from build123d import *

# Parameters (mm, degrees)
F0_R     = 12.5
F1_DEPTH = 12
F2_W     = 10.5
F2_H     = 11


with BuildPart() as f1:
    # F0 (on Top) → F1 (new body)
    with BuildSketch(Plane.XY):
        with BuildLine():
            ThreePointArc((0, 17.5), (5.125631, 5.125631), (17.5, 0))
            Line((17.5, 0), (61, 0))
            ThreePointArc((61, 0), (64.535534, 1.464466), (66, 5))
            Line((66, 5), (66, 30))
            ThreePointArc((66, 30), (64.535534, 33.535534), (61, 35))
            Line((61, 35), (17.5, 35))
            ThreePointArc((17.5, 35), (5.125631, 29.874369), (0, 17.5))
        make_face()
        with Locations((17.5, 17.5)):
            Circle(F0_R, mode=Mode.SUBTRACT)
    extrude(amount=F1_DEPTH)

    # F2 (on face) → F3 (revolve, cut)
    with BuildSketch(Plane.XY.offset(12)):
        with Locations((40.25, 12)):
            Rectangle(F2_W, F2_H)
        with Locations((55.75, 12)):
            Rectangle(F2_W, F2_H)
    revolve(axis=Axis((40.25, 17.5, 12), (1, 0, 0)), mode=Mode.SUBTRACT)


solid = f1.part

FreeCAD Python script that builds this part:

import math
import FreeCAD as App
import Part
import Sketcher
from FreeCAD import Vector


def add_polygon(sketch, points):
    """Adds a closed chain of lines whose ends are joined by coincident constraints."""
    first, n = sketch.GeometryCount, len(points)
    for a, b in zip(points, points[1:] + points[:1]):
        sketch.addGeometry(Part.LineSegment(App.Vector(*a, 0), App.Vector(*b, 0)), False)
    for i in range(n):
        sketch.addConstraint(Sketcher.Constraint("Coincident", first + i, 2, first + (i + 1) % n, 1))

doc = App.newDocument("Part")
body = doc.addObject("PartDesign::Body", "Body")

sketch1 = body.newObject("Sketcher::SketchObject", "Sketch")
sketch1.AttachmentSupport = (doc.getObject("XY_Plane"), [""])
sketch1.MapMode = "FlatFace"
sketch1.addGeometry(Part.ArcOfCircle(Part.Circle(Vector(17.5, 17.5, 0), Vector(0, 0, 1), 17.5), math.radians(180), math.radians(270)), False)
sketch1.addGeometry(Part.LineSegment(Vector(17.5, 0, 0), Vector(61, 0, 0)), False)
sketch1.addGeometry(Part.ArcOfCircle(Part.Circle(Vector(61, 5, 0), Vector(0, 0, 1), 5), math.radians(-90), math.radians(0)), False)
sketch1.addGeometry(Part.LineSegment(Vector(66, 5, 0), Vector(66, 30, 0)), False)
sketch1.addGeometry(Part.ArcOfCircle(Part.Circle(Vector(61, 30, 0), Vector(0, 0, 1), 5), math.radians(0), math.radians(90)), False)
sketch1.addGeometry(Part.LineSegment(Vector(61, 35, 0), Vector(17.5, 35, 0)), False)
sketch1.addGeometry(Part.ArcOfCircle(Part.Circle(Vector(17.5, 17.5, 0), Vector(0, 0, 1), 17.5), math.radians(90), math.radians(180)), False)
sketch1.addGeometry(Part.Circle(Vector(17.5, 17.5, 0), Vector(0, 0, 1), 12.5), False)
sketch1.addConstraint(Sketcher.Constraint("Tangent", 0, 2, 1, 1))
sketch1.addConstraint(Sketcher.Constraint("Tangent", 1, 2, 2, 1))
sketch1.addConstraint(Sketcher.Constraint("Tangent", 2, 2, 3, 1))
sketch1.addConstraint(Sketcher.Constraint("Tangent", 3, 2, 4, 1))
sketch1.addConstraint(Sketcher.Constraint("Tangent", 4, 2, 5, 1))
sketch1.addConstraint(Sketcher.Constraint("Tangent", 5, 2, 6, 1))
sketch1.addConstraint(Sketcher.Constraint("Tangent", 6, 2, 0, 1))
sketch1.addConstraint(Sketcher.Constraint("Horizontal", 1))
sketch1.addConstraint(Sketcher.Constraint("Vertical", 3))
sketch1.addConstraint(Sketcher.Constraint("Horizontal", 5))
sketch1.addConstraint(Sketcher.Constraint("Coincident", 7, 3, 0, 3))
sketch1.addConstraint(Sketcher.Constraint("Equal", 2, 4))
sketch1.addConstraint(Sketcher.Constraint("Equal", 0, 6))
sketch1.addConstraint(Sketcher.Constraint("PointOnObject", 0, 2, -1))
sketch1.addConstraint(Sketcher.Constraint("PointOnObject", 6, 2, -2))
sketch1.addConstraint(Sketcher.Constraint("Horizontal", 7, 3, 6, 2))
sketch1.addConstraint(Sketcher.Constraint("Diameter", 7, 25.0))
sketch1.addConstraint(Sketcher.Constraint("Radius", 2, 5.0))
sketch1.addConstraint(Sketcher.Constraint("Radius", 0, 17.499999))
sketch1.addConstraint(Sketcher.Constraint("DistanceX", 1, 1, 1, 2, 43.5))
pad1 = body.newObject("PartDesign::Pad", "Pad")
pad1.Profile = sketch1
pad1.Length = 12

sketch2 = body.newObject("Sketcher::SketchObject", "Sketch001")
sketch2.AttachmentSupport = (doc.getObject("XY_Plane"), [""])
sketch2.MapMode = "FlatFace"
sketch2.AttachmentOffset = App.Placement(Vector(0, 0, 12), App.Rotation())
add_polygon(sketch2, [(35, 18), (35, 6), (46, 6), (46, 18)])
add_polygon(sketch2, [(50, 18), (50, 6), (61, 6), (61, 18)])
sketch2.addGeometry(Part.LineSegment(Vector(35, 18, 0), Vector(61, 18, 0)), True)
sketch2.addConstraint(Sketcher.Constraint("Vertical", 0))
sketch2.addConstraint(Sketcher.Constraint("Horizontal", 1))
sketch2.addConstraint(Sketcher.Constraint("Vertical", 2))
sketch2.addConstraint(Sketcher.Constraint("Horizontal", 3))
sketch2.addConstraint(Sketcher.Constraint("Vertical", 4))
sketch2.addConstraint(Sketcher.Constraint("Horizontal", 5))
sketch2.addConstraint(Sketcher.Constraint("Vertical", 6))
sketch2.addConstraint(Sketcher.Constraint("Horizontal", 7))
sketch2.addConstraint(Sketcher.Constraint("Horizontal", 8))
sketch2.addConstraint(Sketcher.Constraint("Coincident", 8, 1, 3, 2))
sketch2.addConstraint(Sketcher.Constraint("Coincident", 8, 2, 6, 2))
sketch2.addConstraint(Sketcher.Constraint("Horizontal", 1, 2, 4, 2))
sketch2.addConstraint(Sketcher.Constraint("Equal", 3, 5))
sketch2.addConstraint(Sketcher.Constraint("DistanceX", 8, 1, 8, 2, 26.0))
sketch2.addConstraint(Sketcher.Constraint("DistanceY", 0, 2, 0, 1, 11.0))
sketch2.addConstraint(Sketcher.Constraint("DistanceX", 1, 1, 1, 2, 10.5))
sketch2.addConstraint(Sketcher.Constraint("DistanceX", -1, 1, 0, 2, 35.0))
sketch2.addConstraint(Sketcher.Constraint("DistanceY", -1, 1, 0, 2, 6.5))
groove = body.newObject("PartDesign::Groove", "Groove")
groove.Profile = sketch2
groove.ReferenceAxis = (sketch2, ["Axis0"])
groove.Angle = 360

doc.recompute()
